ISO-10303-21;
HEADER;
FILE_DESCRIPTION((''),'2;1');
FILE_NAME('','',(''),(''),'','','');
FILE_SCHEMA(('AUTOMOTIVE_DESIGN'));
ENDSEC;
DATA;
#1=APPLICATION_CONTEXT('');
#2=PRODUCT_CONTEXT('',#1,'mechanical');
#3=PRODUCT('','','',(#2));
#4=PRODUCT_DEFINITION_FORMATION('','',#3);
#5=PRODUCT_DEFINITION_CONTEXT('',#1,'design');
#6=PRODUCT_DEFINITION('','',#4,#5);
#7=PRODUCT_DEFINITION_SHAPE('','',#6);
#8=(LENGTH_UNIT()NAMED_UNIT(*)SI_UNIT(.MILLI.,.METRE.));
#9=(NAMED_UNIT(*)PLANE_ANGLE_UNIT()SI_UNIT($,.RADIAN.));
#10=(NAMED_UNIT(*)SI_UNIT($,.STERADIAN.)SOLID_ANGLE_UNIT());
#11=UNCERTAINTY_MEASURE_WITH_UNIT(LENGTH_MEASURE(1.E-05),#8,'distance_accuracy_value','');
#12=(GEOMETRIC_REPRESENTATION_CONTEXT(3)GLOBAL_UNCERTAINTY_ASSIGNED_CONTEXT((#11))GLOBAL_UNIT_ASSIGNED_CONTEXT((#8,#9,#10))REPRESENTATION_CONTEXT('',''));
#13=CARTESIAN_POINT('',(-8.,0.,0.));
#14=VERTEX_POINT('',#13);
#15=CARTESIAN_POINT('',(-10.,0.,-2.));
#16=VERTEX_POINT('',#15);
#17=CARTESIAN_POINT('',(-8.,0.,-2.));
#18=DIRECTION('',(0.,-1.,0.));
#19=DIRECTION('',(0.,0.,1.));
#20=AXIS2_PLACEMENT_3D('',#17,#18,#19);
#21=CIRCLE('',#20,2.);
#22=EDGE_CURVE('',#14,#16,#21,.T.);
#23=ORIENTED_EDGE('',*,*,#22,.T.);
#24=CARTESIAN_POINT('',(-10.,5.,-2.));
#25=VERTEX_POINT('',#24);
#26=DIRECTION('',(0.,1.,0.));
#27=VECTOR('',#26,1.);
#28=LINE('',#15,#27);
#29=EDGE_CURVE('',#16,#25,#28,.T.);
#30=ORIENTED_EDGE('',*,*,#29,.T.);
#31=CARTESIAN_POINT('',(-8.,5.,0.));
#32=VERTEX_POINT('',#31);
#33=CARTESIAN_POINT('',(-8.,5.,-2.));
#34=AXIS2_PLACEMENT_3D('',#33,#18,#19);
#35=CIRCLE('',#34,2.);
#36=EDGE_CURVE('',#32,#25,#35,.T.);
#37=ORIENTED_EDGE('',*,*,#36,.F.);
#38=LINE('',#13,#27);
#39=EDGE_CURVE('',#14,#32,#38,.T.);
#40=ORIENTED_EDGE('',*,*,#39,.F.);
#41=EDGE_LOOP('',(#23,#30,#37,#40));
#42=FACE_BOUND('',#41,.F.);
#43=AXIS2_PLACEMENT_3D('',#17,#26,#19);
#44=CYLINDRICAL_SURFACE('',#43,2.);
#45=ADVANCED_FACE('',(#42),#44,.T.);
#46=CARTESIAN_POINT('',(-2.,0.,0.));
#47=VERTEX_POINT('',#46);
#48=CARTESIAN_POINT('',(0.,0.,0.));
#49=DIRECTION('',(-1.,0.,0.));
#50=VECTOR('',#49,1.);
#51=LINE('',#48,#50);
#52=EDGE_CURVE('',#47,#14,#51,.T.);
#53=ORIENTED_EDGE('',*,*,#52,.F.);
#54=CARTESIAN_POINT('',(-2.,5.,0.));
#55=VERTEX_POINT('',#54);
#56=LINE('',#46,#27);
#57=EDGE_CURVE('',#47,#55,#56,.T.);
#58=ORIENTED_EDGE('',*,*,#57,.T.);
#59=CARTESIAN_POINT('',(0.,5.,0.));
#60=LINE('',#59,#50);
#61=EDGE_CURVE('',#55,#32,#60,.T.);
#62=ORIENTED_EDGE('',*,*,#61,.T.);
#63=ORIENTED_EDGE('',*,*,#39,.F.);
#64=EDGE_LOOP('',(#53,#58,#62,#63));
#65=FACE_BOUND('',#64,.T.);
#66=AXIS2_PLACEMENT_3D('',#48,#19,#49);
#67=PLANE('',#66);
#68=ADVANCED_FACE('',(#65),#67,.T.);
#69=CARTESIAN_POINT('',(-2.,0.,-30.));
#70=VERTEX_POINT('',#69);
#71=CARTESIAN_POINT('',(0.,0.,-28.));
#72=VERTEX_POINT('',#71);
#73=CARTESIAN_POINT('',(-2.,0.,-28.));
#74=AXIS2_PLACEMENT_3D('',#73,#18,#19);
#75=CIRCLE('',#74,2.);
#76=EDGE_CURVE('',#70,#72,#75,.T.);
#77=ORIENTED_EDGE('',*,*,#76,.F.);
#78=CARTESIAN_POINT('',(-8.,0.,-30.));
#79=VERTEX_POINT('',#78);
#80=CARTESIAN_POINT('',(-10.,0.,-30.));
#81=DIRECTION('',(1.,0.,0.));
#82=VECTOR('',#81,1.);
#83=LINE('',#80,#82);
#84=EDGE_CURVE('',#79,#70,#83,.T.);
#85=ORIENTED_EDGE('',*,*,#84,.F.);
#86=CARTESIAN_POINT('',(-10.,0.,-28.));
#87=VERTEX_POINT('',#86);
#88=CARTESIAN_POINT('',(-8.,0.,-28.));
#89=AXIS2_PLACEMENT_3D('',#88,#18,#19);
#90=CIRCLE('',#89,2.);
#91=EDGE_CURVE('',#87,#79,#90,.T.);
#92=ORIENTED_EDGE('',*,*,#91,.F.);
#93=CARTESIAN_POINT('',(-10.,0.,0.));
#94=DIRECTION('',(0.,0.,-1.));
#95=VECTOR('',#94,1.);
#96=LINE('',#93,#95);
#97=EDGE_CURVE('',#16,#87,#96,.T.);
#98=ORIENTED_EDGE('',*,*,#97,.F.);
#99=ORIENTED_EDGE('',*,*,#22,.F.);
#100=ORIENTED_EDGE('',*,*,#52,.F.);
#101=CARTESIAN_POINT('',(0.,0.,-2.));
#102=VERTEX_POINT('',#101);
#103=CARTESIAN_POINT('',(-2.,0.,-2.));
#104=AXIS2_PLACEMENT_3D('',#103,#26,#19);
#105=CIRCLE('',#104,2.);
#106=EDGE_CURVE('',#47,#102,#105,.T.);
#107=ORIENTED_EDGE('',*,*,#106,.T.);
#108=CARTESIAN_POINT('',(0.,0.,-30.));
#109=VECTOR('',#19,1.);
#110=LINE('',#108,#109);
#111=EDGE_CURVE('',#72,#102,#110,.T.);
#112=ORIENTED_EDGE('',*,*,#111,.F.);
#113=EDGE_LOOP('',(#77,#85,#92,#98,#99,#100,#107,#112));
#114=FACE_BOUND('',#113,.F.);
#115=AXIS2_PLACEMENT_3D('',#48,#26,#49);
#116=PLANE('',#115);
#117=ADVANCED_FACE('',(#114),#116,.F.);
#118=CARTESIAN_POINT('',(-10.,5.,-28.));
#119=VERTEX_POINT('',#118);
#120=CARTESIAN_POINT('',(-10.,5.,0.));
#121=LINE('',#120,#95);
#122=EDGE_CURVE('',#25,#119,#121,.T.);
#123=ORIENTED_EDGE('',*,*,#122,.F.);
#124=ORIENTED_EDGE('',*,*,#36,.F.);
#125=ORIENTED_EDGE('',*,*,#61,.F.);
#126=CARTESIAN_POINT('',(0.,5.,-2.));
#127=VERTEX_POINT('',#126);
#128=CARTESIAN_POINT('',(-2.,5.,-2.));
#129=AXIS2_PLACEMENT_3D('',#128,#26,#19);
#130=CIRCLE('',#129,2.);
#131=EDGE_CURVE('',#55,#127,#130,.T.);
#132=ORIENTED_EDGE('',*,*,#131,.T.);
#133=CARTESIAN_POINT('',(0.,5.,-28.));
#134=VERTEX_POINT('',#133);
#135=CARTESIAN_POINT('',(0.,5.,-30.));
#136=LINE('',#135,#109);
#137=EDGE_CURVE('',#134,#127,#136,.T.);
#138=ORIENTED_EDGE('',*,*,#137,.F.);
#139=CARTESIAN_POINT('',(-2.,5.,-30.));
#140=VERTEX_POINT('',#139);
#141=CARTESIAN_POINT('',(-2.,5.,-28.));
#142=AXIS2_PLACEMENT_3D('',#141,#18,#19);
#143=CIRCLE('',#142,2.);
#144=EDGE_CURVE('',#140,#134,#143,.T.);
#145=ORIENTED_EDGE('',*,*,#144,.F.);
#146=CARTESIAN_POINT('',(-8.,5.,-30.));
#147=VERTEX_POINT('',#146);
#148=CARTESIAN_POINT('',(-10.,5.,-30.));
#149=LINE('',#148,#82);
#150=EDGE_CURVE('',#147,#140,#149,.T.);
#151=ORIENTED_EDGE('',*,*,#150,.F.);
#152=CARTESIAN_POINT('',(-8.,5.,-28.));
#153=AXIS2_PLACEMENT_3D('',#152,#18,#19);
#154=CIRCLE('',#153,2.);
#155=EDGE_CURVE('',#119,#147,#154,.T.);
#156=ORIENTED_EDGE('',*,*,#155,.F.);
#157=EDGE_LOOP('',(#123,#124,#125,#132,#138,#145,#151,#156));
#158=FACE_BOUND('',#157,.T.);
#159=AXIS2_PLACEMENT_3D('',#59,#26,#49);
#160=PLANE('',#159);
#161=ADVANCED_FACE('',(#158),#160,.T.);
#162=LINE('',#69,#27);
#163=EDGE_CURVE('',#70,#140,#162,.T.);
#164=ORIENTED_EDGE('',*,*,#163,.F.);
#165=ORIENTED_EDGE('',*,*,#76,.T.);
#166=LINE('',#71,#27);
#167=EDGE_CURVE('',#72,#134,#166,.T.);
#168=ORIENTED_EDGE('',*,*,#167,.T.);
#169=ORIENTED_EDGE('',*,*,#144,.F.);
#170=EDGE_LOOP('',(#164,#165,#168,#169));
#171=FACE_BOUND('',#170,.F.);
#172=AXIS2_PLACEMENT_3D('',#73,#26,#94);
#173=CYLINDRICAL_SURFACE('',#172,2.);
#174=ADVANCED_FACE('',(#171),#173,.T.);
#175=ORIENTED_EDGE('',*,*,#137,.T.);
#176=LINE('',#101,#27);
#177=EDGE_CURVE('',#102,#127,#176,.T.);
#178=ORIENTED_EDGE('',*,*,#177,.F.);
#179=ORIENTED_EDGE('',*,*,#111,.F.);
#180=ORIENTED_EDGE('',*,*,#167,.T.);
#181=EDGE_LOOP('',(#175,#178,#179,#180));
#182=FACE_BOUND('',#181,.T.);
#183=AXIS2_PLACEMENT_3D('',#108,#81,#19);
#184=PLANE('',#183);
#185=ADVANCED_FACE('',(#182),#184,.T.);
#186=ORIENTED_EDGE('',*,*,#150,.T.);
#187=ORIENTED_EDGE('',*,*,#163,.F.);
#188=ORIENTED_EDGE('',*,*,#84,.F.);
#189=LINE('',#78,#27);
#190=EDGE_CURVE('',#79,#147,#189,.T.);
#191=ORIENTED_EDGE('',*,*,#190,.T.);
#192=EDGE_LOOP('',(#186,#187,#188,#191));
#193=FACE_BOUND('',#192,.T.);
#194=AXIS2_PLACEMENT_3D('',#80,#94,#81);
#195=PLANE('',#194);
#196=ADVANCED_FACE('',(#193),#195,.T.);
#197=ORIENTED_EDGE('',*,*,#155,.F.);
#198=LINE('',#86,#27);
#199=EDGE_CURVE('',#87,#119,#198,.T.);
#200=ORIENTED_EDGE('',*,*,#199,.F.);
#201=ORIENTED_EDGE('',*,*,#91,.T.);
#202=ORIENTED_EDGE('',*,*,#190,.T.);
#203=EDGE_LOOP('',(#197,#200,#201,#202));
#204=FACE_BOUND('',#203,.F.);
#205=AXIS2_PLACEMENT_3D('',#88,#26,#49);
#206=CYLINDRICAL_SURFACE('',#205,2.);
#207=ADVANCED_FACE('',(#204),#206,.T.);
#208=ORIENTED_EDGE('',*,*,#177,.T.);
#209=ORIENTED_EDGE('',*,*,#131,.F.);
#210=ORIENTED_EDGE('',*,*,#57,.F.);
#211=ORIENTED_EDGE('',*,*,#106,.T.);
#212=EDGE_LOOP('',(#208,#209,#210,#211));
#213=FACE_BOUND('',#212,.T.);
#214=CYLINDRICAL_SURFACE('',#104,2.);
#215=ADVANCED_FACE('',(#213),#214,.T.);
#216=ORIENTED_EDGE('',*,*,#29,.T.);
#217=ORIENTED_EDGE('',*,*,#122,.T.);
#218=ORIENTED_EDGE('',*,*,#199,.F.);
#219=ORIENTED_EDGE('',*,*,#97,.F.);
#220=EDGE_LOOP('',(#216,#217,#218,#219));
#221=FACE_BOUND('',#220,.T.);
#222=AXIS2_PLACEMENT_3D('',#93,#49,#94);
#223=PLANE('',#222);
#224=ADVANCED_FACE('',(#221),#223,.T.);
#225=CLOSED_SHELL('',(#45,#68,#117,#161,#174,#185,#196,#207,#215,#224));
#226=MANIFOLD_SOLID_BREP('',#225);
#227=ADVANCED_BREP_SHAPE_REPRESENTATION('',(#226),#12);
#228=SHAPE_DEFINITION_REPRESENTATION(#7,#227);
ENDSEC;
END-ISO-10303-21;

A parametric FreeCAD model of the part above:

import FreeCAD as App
import Part
import Sketcher
from FreeCAD import Vector


def edges_at(feature, points):
    """Names of the edges that pass closest to the given points."""
    edges = feature.Shape.Edges
    near = lambda p: min(range(len(edges)), key=lambda i: edges[i].distToShape(Part.Vertex(*p))[0])
    return sorted({f"Edge{near(p) + 1}" for p in points})

doc = App.newDocument("Part")
body = doc.addObject("PartDesign::Body", "Body")

sketch1 = body.newObject("Sketcher::SketchObject", "Sketch")
sketch1.AttachmentSupport = (doc.getObject("XZ_Plane"), [""])
sketch1.MapMode = "FlatFace"
sketch1.addGeometry(Part.LineSegment(Vector(-10, 0, 0), Vector(0, 0, 0)), False)
sketch1.addGeometry(Part.LineSegment(Vector(0, 0, 0), Vector(0, -30, 0)), False)
sketch1.addGeometry(Part.LineSegment(Vector(0, -30, 0), Vector(-10, -30, 0)), False)
sketch1.addGeometry(Part.LineSegment(Vector(-10, -30, 0), Vector(-10, 0, 0)), False)
sketch1.addConstraint(Sketcher.Constraint("Coincident", 0, 2, 1, 1))
sketch1.addConstraint(Sketcher.Constraint("Coincident", 1, 2, 2, 1))
sketch1.addConstraint(Sketcher.Constraint("Coincident", 2, 2, 3, 1))
sketch1.addConstraint(Sketcher.Constraint("Coincident", 3, 2, 0, 1))
sketch1.addConstraint(Sketcher.Constraint("Horizontal", 0))
sketch1.addConstraint(Sketcher.Constraint("Vertical", 1))
sketch1.addConstraint(Sketcher.Constraint("Horizontal", 2))
sketch1.addConstraint(Sketcher.Constraint("Vertical", 3))
sketch1.addConstraint(Sketcher.Constraint("Coincident", 0, 2, -1, 1))
sketch1.addConstraint(Sketcher.Constraint("DistanceX", 0, 1, 0, 2, 10.0))
sketch1.addConstraint(Sketcher.Constraint("DistanceY", 1, 2, 1, 1, 30.0))
pad1 = body.newObject("PartDesign::Pad", "Pad")
pad1.Profile = sketch1
pad1.Length = 5
pad1.Reversed = True
doc.recompute()

fillet = body.newObject("PartDesign::Fillet", "Fillet")
fillet.Base = (pad1, edges_at(pad1, [
    (-10, 2.5, -30),
    (-10, 2.5, 0),
    (0, 2.5, 0),
    (0, 2.5, -30),
]))
fillet.Radius = 2

doc.recompute()
